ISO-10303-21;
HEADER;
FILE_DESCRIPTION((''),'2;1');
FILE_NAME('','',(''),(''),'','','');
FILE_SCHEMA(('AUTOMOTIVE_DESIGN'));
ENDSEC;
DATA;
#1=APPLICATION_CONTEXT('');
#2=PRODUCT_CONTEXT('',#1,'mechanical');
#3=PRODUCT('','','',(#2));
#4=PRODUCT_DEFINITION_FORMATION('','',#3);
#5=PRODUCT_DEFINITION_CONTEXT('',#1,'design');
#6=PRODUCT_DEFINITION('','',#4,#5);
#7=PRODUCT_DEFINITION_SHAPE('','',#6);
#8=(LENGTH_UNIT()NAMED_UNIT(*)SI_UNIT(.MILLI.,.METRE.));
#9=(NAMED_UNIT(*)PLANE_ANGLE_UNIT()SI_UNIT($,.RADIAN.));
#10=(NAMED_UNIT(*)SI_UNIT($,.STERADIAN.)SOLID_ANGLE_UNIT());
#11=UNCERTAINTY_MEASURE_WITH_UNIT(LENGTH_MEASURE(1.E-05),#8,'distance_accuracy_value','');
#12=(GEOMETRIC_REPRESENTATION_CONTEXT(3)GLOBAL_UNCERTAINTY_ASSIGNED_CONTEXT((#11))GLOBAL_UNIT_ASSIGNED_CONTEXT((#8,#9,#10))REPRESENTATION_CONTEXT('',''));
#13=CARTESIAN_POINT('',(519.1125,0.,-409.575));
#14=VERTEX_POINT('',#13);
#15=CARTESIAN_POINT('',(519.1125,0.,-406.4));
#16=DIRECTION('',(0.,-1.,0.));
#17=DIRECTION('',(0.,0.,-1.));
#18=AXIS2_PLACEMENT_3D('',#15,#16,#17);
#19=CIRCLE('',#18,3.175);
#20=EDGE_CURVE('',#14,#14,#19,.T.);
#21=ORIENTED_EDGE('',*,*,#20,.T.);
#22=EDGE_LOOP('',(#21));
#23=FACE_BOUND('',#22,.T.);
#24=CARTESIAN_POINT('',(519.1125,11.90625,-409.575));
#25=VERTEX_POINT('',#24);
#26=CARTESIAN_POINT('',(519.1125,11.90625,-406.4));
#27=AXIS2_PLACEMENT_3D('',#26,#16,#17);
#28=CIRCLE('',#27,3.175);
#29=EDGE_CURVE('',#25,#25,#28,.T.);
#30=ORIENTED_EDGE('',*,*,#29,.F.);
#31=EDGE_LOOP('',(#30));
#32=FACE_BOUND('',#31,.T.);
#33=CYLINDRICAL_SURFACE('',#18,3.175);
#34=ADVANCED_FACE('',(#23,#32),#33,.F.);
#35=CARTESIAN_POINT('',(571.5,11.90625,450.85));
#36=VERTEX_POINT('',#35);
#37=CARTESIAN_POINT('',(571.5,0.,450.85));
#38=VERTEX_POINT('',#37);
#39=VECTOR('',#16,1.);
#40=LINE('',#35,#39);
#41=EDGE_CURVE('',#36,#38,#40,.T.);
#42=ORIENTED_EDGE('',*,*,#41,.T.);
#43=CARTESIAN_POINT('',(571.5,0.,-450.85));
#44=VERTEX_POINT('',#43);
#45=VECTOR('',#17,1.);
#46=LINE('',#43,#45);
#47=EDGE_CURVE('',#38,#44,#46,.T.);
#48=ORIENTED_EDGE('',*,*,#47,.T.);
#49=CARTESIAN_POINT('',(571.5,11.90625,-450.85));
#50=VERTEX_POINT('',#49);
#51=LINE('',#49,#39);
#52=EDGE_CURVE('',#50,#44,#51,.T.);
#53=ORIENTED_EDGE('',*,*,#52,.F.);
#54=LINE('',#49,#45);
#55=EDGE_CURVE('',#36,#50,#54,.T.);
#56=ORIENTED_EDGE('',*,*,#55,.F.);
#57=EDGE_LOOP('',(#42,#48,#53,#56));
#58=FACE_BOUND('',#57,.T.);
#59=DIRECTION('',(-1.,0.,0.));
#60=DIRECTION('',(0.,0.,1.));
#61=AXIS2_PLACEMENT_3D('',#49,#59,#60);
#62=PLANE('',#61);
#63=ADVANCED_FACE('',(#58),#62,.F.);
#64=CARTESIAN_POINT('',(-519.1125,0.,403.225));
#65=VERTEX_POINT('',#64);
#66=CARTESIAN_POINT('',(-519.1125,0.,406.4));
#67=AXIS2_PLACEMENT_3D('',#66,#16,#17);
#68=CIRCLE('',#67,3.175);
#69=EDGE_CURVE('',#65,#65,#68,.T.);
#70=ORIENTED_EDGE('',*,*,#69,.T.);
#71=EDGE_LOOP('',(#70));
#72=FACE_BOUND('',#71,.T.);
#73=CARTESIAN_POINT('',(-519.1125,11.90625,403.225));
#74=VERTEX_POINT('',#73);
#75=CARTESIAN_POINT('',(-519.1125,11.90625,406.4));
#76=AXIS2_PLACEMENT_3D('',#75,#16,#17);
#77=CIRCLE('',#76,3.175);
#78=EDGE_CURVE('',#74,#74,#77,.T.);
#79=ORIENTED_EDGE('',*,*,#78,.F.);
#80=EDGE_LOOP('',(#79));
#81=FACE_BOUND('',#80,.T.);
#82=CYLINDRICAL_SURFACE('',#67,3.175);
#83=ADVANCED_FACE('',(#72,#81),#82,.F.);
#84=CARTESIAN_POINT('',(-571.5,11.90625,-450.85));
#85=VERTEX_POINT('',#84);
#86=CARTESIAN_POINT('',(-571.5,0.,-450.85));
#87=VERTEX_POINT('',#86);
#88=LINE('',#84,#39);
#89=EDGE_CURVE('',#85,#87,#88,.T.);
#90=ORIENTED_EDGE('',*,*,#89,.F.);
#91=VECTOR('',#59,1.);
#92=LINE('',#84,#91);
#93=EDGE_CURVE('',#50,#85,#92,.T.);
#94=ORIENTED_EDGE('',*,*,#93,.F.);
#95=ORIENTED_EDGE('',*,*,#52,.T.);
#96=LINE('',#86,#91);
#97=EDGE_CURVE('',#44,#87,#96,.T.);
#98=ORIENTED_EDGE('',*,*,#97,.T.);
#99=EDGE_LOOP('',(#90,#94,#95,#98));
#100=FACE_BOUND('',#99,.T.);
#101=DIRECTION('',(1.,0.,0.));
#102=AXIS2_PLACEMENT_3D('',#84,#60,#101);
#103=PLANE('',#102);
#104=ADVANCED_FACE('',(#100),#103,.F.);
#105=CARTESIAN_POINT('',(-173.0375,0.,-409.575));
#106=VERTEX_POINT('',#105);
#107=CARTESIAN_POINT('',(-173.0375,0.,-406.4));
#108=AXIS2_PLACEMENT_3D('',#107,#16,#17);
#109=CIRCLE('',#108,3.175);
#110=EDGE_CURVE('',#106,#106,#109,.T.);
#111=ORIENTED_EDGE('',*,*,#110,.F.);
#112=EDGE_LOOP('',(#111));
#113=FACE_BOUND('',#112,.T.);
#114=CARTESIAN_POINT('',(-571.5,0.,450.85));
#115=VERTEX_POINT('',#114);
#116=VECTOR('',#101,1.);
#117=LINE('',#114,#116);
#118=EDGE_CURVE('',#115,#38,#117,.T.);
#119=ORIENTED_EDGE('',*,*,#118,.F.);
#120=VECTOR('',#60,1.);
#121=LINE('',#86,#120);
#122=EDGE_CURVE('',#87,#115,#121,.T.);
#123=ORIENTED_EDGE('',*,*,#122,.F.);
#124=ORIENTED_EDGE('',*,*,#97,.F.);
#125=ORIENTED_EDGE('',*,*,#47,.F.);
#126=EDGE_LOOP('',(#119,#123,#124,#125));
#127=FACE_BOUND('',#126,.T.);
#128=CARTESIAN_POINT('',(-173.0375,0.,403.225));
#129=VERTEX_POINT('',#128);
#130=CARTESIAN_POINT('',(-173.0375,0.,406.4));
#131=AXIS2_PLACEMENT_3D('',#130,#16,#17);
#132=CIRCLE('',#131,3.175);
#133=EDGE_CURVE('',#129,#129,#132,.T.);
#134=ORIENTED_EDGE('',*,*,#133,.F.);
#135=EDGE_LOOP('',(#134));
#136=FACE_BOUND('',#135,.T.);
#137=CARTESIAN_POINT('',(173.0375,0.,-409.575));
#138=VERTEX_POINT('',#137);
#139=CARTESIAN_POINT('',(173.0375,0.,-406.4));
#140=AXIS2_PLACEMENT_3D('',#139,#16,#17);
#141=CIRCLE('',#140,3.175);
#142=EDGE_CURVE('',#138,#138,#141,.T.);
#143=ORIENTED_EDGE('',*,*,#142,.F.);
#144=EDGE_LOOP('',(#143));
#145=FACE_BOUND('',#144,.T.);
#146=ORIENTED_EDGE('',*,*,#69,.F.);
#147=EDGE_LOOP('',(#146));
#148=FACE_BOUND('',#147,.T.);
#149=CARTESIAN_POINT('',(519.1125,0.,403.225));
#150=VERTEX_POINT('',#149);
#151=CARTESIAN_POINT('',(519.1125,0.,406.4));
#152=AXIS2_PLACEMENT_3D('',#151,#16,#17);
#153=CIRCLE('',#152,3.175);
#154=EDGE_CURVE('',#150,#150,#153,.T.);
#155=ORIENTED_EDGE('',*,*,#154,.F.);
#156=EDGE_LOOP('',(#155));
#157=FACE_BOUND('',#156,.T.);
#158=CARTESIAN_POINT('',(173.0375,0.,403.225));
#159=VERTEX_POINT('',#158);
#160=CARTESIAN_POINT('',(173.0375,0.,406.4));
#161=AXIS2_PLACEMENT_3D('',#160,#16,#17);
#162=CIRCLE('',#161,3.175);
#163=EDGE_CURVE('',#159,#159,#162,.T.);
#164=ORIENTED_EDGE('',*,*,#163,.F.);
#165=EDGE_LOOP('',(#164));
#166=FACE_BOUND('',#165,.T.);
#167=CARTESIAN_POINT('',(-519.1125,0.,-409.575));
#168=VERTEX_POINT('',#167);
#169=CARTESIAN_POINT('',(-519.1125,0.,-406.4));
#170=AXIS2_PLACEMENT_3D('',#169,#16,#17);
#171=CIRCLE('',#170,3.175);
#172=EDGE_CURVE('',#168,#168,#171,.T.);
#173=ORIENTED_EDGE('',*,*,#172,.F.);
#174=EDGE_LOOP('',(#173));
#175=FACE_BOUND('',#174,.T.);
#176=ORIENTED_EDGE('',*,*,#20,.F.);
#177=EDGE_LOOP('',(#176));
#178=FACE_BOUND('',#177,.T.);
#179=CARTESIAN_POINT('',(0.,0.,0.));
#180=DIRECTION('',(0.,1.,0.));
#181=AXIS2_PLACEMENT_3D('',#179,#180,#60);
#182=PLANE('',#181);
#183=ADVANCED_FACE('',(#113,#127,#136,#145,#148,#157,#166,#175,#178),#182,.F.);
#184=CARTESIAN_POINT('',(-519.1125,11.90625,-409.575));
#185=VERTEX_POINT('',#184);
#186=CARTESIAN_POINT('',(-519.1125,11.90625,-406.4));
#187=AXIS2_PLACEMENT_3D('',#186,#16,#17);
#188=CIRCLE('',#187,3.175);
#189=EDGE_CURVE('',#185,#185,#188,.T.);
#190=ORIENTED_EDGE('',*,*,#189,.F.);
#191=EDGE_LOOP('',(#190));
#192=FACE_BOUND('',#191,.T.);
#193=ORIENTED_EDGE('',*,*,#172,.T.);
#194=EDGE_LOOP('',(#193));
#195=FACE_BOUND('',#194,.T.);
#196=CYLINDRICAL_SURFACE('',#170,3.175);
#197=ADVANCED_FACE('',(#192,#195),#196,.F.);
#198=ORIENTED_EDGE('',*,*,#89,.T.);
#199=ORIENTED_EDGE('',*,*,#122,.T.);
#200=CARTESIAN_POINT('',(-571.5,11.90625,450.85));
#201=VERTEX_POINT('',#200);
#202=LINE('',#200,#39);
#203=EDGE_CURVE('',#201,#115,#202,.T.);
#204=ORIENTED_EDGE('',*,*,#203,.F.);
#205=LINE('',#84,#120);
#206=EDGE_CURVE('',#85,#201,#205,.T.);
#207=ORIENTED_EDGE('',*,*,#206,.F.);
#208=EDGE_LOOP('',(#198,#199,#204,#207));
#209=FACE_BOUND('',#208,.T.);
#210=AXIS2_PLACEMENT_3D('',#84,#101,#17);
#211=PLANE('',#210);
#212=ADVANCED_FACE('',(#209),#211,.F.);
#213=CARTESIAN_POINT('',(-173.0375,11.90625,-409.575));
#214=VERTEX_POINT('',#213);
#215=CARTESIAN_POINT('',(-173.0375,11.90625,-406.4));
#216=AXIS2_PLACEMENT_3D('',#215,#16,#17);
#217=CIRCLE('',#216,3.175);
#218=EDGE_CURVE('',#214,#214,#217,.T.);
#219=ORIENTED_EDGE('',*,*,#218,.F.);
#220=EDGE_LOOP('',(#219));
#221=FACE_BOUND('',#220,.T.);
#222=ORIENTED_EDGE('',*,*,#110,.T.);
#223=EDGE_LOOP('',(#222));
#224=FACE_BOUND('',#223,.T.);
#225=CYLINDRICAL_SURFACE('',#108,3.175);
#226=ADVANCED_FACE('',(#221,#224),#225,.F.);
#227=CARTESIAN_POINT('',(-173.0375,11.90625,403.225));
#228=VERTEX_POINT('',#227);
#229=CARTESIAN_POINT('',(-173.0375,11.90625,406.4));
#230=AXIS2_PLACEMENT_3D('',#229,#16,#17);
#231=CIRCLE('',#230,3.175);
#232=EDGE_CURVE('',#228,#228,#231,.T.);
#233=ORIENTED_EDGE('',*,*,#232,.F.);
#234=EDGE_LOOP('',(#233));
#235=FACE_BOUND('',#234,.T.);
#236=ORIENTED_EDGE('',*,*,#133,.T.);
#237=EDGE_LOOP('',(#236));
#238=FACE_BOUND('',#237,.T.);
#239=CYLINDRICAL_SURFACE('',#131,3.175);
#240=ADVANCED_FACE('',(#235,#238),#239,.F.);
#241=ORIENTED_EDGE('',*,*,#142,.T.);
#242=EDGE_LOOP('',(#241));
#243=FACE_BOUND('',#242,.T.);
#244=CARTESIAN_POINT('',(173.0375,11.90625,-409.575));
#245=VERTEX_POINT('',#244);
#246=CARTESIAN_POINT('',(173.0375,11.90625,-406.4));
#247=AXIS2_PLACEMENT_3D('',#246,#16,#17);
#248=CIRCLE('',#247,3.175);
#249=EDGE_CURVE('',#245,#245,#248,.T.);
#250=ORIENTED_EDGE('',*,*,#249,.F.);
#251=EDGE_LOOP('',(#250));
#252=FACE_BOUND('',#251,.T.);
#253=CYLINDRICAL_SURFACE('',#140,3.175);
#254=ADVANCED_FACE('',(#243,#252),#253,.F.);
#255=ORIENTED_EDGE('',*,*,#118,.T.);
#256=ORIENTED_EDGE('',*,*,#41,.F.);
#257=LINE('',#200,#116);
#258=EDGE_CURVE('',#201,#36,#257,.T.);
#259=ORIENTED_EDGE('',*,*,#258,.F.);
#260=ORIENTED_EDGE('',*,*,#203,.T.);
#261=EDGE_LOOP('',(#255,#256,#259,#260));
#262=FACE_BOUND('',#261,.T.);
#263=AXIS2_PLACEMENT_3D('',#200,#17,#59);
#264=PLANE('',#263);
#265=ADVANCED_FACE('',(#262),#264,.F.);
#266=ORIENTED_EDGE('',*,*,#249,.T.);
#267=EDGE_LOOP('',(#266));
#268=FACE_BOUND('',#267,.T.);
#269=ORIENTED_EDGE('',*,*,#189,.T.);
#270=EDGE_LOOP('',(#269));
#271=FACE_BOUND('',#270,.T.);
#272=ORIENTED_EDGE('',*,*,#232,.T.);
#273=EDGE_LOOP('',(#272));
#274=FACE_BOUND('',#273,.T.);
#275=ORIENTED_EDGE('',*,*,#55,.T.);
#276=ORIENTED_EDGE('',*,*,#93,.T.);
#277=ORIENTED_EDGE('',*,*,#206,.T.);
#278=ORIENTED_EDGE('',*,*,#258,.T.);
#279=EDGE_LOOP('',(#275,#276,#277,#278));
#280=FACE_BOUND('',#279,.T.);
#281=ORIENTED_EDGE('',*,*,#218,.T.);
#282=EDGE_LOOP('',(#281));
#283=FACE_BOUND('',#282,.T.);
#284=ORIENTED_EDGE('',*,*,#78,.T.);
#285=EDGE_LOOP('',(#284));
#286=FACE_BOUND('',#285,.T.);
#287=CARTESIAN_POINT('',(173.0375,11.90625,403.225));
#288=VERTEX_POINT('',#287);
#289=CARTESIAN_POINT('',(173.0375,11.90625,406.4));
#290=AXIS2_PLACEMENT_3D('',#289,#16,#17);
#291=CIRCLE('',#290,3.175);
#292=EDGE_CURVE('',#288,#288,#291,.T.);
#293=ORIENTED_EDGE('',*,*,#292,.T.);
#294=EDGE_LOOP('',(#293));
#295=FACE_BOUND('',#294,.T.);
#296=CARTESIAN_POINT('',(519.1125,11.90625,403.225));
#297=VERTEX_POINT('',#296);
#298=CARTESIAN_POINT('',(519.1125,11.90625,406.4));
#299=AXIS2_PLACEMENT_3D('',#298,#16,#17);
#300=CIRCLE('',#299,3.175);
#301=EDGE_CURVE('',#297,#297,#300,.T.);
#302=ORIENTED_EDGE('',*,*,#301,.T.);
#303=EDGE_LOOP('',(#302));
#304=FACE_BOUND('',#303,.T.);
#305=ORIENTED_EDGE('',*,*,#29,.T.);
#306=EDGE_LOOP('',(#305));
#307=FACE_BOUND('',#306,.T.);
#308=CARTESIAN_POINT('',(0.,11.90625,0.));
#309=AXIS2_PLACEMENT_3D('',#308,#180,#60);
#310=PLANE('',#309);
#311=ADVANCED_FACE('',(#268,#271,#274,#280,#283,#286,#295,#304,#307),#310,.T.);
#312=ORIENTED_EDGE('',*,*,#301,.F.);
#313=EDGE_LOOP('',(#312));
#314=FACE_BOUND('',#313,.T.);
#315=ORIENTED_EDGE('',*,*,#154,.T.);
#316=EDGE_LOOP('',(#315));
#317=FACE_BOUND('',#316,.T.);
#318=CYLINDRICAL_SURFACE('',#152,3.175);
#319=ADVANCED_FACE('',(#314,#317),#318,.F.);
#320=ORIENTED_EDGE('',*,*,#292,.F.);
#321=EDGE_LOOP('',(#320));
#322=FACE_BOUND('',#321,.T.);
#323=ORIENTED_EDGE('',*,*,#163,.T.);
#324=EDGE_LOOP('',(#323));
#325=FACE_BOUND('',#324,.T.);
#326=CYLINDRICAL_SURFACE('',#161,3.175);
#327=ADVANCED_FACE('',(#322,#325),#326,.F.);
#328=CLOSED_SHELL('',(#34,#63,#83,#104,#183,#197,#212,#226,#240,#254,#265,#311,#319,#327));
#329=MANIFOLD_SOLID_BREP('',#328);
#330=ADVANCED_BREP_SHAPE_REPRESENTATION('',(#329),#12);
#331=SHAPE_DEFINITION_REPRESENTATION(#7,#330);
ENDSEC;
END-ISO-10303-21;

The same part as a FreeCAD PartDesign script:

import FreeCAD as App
import Part
import Sketcher
from FreeCAD import Vector
Q = App.Units.Quantity

doc = App.newDocument("Part")
body = doc.addObject("PartDesign::Body", "Body")

sketch1 = doc.addObject("Sketcher::SketchObject", "Sketch")
body.addObject(sketch1)
sketch1.AttachmentSupport = (doc.XZ_Plane, [""])
sketch1.MapMode = "FlatFace"
sketch1.addGeometry(Part.LineSegment(Vector(-572, -451, 0), Vector(-572, 451, 0)), False)
sketch1.addGeometry(Part.LineSegment(Vector(-572, 451, 0), Vector(572, 451, 0)), False)
sketch1.addGeometry(Part.LineSegment(Vector(572, 451, 0), Vector(572, -451, 0)), False)
sketch1.addGeometry(Part.LineSegment(Vector(572, -451, 0), Vector(-572, -451, 0)), False)
sketch1.addConstraint(Sketcher.Constraint("Coincident", 0, 2, 1, 1))
sketch1.addConstraint(Sketcher.Constraint("Coincident", 1, 2, 2, 1))
sketch1.addConstraint(Sketcher.Constraint("Coincident", 2, 2, 3, 1))
sketch1.addConstraint(Sketcher.Constraint("Coincident", 3, 2, 0, 1))
sketch1.addConstraint(Sketcher.Constraint("Vertical", 0))
sketch1.addConstraint(Sketcher.Constraint("Horizontal", 1))
sketch1.addConstraint(Sketcher.Constraint("Vertical", 2))
sketch1.addConstraint(Sketcher.Constraint("Horizontal", 3))
sketch1.addConstraint(Sketcher.Constraint("Symmetric", 0, 2, 2, 2, -1, 1))
sketch1.addConstraint(Sketcher.Constraint("DistanceX", 1, 1, 1, 2, Q("45 in")))
sketch1.addConstraint(Sketcher.Constraint("DistanceY", 0, 1, 0, 2, Q("35.5 in")))
pad1 = doc.addObject("PartDesign::Pad", "Pad")
body.addObject(pad1)
pad1.Profile = sketch1
pad1.Length = Q("0.46875 in")
pad1.Reversed = True

sketch2 = doc.addObject("Sketcher::SketchObject", "Sketch001")
body.addObject(sketch2)
sketch2.AttachmentSupport = (doc.XZ_Plane, [""])
sketch2.MapMode = "FlatFace"
sketch2.addGeometry(Part.Circle(Vector(-519.1, 406.4, 0), Vector(0, 0, 1), 3.2), False)
sketch2.addGeometry(Part.Circle(Vector(-173, 406.4, 0), Vector(0, 0, 1), 3.2), False)
sketch2.addGeometry(Part.Circle(Vector(173, 406.4, 0), Vector(0, 0, 1), 3.2), False)
sketch2.addGeometry(Part.Circle(Vector(519.1, 406.4, 0), Vector(0, 0, 1), 3.2), False)
sketch2.addGeometry(Part.Circle(Vector(-173, -406.4, 0), Vector(0, 0, 1), 3.2), False)
sketch2.addGeometry(Part.Circle(Vector(173, -406.4, 0), Vector(0, 0, 1), 3.2), False)
sketch2.addGeometry(Part.Circle(Vector(519.1, -406.4, 0), Vector(0, 0, 1), 3.2), False)
sketch2.addGeometry(Part.Circle(Vector(-519.1, -406.4, 0), Vector(0, 0, 1), 3.2), False)
sketch2.addConstraint(Sketcher.Constraint("Equal", 0, 1))
sketch2.addConstraint(Sketcher.Constraint("Equal", 1, 2))
sketch2.addConstraint(Sketcher.Constraint("Equal", 2, 3))
sketch2.addConstraint(Sketcher.Constraint("Equal", 3, 4))
sketch2.addConstraint(Sketcher.Constraint("Equal", 4, 5))
sketch2.addConstraint(Sketcher.Constraint("Equal", 5, 6))
sketch2.addConstraint(Sketcher.Constraint("Equal", 6, 7))
sketch2.addConstraint(Sketcher.Constraint("Symmetric", 2, 3, 4, 3, -1, 1))
sketch2.addConstraint(Sketcher.Constraint("Symmetric", 1, 3, 5, 3, -1, 1))
sketch2.addConstraint(Sketcher.Constraint("Symmetric", 0, 3, 6, 3, -1, 1))
sketch2.addConstraint(Sketcher.Constraint("Symmetric", 3, 3, 7, 3, -1, 1))
sketch2.addConstraint(Sketcher.Constraint("Symmetric", 1, 3, 2, 3, -2))
sketch2.addConstraint(Sketcher.Constraint("Symmetric", 0, 3, 3, 3, -2))
sketch2.addConstraint(Sketcher.Constraint("Horizontal", 0, 3, 1, 3))
sketch2.addConstraint(Sketcher.Constraint("Diameter", 0, Q("0.25 in")))
sketch2.addConstraint(Sketcher.Constraint("DistanceY", -1, 1, 0, 3, Q("16 in")))
sketch2.addConstraint(Sketcher.Constraint("DistanceX", 0, 3, 2, 3, Q("27.25 in")))
sketch2.addConstraint(Sketcher.Constraint("DistanceX", 0, 3, -1, 1, Q("20.4375 in")))
doc.recompute()
hole = doc.addObject("PartDesign::Hole", "Hole")
body.addObject(hole)
hole.Profile = sketch2
hole.ThreadType = "None"
hole.Diameter = Q("0.25 in")
hole.DepthType = "ThroughAll"

doc.recompute()
